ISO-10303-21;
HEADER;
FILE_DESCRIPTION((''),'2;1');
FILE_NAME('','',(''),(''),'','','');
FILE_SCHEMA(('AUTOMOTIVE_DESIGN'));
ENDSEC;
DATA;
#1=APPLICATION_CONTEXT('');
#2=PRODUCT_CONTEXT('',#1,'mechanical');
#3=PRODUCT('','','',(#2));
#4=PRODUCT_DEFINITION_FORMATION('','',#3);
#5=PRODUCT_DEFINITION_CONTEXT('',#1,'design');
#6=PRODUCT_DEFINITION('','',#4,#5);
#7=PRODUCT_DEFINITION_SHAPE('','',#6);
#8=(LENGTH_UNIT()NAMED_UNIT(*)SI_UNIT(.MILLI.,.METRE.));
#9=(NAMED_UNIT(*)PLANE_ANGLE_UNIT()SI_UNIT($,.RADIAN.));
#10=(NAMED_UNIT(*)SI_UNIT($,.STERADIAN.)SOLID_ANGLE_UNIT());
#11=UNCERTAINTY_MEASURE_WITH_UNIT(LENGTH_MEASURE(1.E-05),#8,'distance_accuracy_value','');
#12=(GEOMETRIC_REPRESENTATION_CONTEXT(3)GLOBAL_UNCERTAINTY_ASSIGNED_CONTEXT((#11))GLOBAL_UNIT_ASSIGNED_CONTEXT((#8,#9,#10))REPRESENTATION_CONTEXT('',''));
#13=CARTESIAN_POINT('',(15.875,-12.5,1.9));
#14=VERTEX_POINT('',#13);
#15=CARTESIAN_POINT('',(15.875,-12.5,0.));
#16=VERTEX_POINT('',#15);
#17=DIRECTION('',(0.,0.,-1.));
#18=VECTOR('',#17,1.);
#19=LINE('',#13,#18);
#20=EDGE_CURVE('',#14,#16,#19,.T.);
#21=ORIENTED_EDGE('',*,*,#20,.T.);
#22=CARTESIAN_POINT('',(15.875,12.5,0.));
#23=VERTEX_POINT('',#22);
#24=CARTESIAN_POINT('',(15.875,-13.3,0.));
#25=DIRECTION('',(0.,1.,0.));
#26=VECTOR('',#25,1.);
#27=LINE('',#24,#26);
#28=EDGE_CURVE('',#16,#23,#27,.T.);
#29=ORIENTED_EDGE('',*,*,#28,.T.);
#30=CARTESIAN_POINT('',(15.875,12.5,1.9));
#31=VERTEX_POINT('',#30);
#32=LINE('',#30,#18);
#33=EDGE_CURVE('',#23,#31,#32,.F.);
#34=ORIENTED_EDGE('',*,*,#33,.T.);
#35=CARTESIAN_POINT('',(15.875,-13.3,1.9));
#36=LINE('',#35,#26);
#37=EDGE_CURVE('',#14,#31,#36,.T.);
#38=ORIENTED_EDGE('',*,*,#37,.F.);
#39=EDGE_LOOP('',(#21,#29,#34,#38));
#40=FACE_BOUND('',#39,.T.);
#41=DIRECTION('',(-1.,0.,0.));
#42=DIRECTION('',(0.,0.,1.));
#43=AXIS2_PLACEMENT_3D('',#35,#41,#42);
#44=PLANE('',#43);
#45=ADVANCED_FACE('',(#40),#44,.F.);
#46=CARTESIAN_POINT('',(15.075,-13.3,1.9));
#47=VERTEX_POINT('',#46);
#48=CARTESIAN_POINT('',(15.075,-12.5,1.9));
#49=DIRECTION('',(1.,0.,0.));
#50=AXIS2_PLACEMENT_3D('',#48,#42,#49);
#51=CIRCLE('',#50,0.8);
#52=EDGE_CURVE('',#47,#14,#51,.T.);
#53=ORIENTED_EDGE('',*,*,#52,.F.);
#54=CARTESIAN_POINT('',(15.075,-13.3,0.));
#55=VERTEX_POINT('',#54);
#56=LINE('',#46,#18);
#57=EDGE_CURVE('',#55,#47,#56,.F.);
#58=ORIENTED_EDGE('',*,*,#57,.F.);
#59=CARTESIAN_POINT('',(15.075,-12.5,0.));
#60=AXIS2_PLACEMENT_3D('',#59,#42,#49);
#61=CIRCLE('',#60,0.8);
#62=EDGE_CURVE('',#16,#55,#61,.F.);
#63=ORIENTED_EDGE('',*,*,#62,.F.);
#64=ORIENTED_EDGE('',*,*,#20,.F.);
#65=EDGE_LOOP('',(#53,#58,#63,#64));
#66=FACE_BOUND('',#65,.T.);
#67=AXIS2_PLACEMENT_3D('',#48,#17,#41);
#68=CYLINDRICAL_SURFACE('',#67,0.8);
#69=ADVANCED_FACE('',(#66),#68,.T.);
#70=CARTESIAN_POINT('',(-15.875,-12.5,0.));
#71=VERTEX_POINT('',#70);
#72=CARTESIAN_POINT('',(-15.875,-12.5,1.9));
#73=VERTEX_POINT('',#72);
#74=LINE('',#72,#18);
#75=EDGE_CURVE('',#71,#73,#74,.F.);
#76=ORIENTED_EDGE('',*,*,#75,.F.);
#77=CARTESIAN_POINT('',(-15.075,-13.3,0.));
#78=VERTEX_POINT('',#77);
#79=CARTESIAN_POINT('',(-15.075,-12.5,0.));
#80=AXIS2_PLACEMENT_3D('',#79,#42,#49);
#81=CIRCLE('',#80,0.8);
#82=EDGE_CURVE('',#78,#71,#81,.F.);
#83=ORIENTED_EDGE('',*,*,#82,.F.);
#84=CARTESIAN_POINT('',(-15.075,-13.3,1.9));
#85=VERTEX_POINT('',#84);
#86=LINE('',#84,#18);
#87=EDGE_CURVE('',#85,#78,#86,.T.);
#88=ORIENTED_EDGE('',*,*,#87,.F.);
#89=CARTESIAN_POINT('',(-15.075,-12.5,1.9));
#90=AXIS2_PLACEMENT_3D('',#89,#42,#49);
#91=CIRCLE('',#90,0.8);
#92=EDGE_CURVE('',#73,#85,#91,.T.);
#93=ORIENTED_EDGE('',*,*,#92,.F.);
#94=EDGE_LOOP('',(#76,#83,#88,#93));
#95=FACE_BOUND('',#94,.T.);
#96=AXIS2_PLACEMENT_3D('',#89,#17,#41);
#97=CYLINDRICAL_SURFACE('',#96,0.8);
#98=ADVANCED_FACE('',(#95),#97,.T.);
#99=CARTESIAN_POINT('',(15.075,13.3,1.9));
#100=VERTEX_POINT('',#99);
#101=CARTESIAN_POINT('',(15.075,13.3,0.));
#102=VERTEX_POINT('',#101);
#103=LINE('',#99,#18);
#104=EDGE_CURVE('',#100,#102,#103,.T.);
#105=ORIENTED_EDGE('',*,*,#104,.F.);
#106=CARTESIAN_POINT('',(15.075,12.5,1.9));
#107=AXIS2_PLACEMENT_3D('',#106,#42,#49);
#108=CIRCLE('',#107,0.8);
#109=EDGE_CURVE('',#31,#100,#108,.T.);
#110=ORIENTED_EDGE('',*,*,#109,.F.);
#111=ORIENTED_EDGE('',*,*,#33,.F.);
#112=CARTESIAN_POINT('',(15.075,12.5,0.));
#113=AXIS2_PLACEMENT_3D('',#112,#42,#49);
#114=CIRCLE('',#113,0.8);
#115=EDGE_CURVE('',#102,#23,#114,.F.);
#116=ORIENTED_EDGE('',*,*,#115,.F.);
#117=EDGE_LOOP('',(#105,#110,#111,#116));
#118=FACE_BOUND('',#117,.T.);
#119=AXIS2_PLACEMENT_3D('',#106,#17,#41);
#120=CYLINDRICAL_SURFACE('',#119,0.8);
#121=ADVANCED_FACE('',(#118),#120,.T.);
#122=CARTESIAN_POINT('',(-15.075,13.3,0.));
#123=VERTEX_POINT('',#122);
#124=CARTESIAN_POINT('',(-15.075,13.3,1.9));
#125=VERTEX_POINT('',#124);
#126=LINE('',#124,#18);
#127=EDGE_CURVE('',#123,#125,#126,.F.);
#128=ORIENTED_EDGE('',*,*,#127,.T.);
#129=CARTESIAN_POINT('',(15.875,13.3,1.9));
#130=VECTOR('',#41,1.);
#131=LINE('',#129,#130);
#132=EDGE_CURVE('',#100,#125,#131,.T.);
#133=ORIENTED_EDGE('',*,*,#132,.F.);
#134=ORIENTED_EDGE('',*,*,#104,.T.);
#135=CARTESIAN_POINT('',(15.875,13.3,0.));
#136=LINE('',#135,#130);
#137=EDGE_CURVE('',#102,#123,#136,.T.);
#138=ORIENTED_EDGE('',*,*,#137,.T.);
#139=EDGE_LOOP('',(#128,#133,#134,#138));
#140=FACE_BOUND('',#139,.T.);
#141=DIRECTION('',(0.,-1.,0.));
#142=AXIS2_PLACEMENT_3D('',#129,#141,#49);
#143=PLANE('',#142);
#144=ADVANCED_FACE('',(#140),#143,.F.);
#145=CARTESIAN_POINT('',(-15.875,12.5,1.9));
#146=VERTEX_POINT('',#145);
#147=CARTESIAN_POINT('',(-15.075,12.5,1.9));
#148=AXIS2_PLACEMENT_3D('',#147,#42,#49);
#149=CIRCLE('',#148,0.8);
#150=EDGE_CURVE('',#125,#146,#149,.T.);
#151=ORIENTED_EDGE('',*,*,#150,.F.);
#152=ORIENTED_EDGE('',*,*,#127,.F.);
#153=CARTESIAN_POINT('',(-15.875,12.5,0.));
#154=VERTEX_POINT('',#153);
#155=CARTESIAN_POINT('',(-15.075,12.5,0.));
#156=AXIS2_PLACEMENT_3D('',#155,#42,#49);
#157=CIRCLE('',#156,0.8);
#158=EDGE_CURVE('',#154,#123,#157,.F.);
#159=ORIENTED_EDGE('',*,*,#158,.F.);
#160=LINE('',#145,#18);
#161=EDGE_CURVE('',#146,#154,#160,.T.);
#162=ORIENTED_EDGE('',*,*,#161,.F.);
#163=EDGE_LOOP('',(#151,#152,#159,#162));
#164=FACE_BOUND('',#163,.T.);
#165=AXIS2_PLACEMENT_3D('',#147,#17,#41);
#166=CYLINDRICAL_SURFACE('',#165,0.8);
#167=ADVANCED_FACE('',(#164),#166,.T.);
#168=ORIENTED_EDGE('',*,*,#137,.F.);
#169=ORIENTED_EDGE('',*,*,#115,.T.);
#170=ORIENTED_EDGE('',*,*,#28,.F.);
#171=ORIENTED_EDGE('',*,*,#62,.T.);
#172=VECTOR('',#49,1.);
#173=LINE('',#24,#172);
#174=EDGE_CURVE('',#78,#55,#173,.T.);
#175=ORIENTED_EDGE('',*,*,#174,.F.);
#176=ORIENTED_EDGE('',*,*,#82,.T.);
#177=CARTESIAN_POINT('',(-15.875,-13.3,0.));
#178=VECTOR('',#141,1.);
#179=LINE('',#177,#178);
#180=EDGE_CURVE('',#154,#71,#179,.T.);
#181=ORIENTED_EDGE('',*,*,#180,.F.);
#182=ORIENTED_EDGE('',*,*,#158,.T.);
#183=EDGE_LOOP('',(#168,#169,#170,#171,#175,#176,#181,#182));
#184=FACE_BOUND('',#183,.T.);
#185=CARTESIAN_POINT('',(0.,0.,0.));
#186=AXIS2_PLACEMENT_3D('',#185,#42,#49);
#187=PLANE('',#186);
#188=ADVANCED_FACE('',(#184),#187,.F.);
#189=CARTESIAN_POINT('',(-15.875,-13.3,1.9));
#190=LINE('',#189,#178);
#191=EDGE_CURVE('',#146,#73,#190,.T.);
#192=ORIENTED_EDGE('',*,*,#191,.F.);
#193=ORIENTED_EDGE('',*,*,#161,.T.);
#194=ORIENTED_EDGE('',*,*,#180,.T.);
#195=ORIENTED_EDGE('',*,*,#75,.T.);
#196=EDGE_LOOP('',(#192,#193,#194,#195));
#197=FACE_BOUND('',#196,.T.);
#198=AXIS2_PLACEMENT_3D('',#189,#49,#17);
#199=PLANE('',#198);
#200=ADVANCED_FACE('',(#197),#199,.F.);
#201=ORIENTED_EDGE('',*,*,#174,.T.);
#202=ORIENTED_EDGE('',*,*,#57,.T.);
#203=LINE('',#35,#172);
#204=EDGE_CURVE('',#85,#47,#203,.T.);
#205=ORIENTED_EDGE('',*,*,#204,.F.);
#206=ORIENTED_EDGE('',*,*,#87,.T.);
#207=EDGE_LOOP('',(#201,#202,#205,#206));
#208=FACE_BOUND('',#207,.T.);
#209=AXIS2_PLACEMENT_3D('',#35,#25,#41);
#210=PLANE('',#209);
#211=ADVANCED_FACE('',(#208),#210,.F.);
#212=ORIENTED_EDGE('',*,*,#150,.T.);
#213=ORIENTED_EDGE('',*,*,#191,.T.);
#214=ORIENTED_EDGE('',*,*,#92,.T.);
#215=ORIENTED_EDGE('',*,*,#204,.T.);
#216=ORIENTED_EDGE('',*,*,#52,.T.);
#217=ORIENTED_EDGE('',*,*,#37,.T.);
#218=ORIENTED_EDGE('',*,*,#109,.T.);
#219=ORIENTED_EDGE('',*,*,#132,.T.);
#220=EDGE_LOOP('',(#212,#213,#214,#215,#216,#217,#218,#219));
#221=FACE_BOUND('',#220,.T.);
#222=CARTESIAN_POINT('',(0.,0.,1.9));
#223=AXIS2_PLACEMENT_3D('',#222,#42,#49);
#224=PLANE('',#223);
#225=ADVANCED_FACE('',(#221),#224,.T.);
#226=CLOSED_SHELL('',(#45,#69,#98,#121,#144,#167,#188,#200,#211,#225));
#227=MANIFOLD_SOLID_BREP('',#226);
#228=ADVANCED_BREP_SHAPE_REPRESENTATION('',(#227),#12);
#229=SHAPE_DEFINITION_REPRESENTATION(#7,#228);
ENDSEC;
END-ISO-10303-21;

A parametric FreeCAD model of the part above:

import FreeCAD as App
import Part
import Sketcher


def edges_at(feature, points):
    """Names of the edges that pass closest to the given points."""
    edges = feature.Shape.Edges
    near = lambda p: min(range(len(edges)), key=lambda i: edges[i].distToShape(Part.Vertex(*p))[0])
    return sorted({f"Edge{near(p) + 1}" for p in points})

doc = App.newDocument("Part")
body = doc.addObject("PartDesign::Body", "Body")

sketch1 = body.newObject("Sketcher::SketchObject", "Sketch")
sketch1.AttachmentSupport = (doc.getObject("XY_Plane"), [""])
sketch1.MapMode = "FlatFace"
sketch1.addGeometry([
    Part.LineSegment(App.Vector(-16, 13, 0), App.Vector(-16, -13, 0)),
    Part.LineSegment(App.Vector(-16, -13, 0), App.Vector(16, -13, 0)),
    Part.LineSegment(App.Vector(16, -13, 0), App.Vector(16, 13, 0)),
    Part.LineSegment(App.Vector(16, 13, 0), App.Vector(-16, 13, 0)),
], False)
sketch1.addConstraint([
    Sketcher.Constraint("Coincident", 0, 2, 1, 1),
    Sketcher.Constraint("Coincident", 1, 2, 2, 1),
    Sketcher.Constraint("Coincident", 2, 2, 3, 1),
    Sketcher.Constraint("Coincident", 3, 2, 0, 1),
    Sketcher.Constraint("Vertical", 0),
    Sketcher.Constraint("Horizontal", 1),
    Sketcher.Constraint("Vertical", 2),
    Sketcher.Constraint("Horizontal", 3),
    Sketcher.Constraint("Symmetric", 0, 2, 2, 2, -1, 1),
    Sketcher.Constraint("DistanceY", 0, 2, 0, 1, 26.6),
    Sketcher.Constraint("DistanceX", 1, 1, 1, 2, 31.75),
])
pad1 = body.newObject("PartDesign::Pad", "Pad")
pad1.Profile = sketch1
pad1.Length = 1.9
doc.recompute()

fillet = body.newObject("PartDesign::Fillet", "Fillet")
fillet.Base = (pad1, edges_at(pad1, [
    (-15.875, 13.3, 0.95),
    (15.875, 13.3, 0.95),
    (15.875, -13.3, 0.95),
    (-15.875, -13.3, 0.95),
]))
fillet.Radius = 0.8

doc.recompute()
